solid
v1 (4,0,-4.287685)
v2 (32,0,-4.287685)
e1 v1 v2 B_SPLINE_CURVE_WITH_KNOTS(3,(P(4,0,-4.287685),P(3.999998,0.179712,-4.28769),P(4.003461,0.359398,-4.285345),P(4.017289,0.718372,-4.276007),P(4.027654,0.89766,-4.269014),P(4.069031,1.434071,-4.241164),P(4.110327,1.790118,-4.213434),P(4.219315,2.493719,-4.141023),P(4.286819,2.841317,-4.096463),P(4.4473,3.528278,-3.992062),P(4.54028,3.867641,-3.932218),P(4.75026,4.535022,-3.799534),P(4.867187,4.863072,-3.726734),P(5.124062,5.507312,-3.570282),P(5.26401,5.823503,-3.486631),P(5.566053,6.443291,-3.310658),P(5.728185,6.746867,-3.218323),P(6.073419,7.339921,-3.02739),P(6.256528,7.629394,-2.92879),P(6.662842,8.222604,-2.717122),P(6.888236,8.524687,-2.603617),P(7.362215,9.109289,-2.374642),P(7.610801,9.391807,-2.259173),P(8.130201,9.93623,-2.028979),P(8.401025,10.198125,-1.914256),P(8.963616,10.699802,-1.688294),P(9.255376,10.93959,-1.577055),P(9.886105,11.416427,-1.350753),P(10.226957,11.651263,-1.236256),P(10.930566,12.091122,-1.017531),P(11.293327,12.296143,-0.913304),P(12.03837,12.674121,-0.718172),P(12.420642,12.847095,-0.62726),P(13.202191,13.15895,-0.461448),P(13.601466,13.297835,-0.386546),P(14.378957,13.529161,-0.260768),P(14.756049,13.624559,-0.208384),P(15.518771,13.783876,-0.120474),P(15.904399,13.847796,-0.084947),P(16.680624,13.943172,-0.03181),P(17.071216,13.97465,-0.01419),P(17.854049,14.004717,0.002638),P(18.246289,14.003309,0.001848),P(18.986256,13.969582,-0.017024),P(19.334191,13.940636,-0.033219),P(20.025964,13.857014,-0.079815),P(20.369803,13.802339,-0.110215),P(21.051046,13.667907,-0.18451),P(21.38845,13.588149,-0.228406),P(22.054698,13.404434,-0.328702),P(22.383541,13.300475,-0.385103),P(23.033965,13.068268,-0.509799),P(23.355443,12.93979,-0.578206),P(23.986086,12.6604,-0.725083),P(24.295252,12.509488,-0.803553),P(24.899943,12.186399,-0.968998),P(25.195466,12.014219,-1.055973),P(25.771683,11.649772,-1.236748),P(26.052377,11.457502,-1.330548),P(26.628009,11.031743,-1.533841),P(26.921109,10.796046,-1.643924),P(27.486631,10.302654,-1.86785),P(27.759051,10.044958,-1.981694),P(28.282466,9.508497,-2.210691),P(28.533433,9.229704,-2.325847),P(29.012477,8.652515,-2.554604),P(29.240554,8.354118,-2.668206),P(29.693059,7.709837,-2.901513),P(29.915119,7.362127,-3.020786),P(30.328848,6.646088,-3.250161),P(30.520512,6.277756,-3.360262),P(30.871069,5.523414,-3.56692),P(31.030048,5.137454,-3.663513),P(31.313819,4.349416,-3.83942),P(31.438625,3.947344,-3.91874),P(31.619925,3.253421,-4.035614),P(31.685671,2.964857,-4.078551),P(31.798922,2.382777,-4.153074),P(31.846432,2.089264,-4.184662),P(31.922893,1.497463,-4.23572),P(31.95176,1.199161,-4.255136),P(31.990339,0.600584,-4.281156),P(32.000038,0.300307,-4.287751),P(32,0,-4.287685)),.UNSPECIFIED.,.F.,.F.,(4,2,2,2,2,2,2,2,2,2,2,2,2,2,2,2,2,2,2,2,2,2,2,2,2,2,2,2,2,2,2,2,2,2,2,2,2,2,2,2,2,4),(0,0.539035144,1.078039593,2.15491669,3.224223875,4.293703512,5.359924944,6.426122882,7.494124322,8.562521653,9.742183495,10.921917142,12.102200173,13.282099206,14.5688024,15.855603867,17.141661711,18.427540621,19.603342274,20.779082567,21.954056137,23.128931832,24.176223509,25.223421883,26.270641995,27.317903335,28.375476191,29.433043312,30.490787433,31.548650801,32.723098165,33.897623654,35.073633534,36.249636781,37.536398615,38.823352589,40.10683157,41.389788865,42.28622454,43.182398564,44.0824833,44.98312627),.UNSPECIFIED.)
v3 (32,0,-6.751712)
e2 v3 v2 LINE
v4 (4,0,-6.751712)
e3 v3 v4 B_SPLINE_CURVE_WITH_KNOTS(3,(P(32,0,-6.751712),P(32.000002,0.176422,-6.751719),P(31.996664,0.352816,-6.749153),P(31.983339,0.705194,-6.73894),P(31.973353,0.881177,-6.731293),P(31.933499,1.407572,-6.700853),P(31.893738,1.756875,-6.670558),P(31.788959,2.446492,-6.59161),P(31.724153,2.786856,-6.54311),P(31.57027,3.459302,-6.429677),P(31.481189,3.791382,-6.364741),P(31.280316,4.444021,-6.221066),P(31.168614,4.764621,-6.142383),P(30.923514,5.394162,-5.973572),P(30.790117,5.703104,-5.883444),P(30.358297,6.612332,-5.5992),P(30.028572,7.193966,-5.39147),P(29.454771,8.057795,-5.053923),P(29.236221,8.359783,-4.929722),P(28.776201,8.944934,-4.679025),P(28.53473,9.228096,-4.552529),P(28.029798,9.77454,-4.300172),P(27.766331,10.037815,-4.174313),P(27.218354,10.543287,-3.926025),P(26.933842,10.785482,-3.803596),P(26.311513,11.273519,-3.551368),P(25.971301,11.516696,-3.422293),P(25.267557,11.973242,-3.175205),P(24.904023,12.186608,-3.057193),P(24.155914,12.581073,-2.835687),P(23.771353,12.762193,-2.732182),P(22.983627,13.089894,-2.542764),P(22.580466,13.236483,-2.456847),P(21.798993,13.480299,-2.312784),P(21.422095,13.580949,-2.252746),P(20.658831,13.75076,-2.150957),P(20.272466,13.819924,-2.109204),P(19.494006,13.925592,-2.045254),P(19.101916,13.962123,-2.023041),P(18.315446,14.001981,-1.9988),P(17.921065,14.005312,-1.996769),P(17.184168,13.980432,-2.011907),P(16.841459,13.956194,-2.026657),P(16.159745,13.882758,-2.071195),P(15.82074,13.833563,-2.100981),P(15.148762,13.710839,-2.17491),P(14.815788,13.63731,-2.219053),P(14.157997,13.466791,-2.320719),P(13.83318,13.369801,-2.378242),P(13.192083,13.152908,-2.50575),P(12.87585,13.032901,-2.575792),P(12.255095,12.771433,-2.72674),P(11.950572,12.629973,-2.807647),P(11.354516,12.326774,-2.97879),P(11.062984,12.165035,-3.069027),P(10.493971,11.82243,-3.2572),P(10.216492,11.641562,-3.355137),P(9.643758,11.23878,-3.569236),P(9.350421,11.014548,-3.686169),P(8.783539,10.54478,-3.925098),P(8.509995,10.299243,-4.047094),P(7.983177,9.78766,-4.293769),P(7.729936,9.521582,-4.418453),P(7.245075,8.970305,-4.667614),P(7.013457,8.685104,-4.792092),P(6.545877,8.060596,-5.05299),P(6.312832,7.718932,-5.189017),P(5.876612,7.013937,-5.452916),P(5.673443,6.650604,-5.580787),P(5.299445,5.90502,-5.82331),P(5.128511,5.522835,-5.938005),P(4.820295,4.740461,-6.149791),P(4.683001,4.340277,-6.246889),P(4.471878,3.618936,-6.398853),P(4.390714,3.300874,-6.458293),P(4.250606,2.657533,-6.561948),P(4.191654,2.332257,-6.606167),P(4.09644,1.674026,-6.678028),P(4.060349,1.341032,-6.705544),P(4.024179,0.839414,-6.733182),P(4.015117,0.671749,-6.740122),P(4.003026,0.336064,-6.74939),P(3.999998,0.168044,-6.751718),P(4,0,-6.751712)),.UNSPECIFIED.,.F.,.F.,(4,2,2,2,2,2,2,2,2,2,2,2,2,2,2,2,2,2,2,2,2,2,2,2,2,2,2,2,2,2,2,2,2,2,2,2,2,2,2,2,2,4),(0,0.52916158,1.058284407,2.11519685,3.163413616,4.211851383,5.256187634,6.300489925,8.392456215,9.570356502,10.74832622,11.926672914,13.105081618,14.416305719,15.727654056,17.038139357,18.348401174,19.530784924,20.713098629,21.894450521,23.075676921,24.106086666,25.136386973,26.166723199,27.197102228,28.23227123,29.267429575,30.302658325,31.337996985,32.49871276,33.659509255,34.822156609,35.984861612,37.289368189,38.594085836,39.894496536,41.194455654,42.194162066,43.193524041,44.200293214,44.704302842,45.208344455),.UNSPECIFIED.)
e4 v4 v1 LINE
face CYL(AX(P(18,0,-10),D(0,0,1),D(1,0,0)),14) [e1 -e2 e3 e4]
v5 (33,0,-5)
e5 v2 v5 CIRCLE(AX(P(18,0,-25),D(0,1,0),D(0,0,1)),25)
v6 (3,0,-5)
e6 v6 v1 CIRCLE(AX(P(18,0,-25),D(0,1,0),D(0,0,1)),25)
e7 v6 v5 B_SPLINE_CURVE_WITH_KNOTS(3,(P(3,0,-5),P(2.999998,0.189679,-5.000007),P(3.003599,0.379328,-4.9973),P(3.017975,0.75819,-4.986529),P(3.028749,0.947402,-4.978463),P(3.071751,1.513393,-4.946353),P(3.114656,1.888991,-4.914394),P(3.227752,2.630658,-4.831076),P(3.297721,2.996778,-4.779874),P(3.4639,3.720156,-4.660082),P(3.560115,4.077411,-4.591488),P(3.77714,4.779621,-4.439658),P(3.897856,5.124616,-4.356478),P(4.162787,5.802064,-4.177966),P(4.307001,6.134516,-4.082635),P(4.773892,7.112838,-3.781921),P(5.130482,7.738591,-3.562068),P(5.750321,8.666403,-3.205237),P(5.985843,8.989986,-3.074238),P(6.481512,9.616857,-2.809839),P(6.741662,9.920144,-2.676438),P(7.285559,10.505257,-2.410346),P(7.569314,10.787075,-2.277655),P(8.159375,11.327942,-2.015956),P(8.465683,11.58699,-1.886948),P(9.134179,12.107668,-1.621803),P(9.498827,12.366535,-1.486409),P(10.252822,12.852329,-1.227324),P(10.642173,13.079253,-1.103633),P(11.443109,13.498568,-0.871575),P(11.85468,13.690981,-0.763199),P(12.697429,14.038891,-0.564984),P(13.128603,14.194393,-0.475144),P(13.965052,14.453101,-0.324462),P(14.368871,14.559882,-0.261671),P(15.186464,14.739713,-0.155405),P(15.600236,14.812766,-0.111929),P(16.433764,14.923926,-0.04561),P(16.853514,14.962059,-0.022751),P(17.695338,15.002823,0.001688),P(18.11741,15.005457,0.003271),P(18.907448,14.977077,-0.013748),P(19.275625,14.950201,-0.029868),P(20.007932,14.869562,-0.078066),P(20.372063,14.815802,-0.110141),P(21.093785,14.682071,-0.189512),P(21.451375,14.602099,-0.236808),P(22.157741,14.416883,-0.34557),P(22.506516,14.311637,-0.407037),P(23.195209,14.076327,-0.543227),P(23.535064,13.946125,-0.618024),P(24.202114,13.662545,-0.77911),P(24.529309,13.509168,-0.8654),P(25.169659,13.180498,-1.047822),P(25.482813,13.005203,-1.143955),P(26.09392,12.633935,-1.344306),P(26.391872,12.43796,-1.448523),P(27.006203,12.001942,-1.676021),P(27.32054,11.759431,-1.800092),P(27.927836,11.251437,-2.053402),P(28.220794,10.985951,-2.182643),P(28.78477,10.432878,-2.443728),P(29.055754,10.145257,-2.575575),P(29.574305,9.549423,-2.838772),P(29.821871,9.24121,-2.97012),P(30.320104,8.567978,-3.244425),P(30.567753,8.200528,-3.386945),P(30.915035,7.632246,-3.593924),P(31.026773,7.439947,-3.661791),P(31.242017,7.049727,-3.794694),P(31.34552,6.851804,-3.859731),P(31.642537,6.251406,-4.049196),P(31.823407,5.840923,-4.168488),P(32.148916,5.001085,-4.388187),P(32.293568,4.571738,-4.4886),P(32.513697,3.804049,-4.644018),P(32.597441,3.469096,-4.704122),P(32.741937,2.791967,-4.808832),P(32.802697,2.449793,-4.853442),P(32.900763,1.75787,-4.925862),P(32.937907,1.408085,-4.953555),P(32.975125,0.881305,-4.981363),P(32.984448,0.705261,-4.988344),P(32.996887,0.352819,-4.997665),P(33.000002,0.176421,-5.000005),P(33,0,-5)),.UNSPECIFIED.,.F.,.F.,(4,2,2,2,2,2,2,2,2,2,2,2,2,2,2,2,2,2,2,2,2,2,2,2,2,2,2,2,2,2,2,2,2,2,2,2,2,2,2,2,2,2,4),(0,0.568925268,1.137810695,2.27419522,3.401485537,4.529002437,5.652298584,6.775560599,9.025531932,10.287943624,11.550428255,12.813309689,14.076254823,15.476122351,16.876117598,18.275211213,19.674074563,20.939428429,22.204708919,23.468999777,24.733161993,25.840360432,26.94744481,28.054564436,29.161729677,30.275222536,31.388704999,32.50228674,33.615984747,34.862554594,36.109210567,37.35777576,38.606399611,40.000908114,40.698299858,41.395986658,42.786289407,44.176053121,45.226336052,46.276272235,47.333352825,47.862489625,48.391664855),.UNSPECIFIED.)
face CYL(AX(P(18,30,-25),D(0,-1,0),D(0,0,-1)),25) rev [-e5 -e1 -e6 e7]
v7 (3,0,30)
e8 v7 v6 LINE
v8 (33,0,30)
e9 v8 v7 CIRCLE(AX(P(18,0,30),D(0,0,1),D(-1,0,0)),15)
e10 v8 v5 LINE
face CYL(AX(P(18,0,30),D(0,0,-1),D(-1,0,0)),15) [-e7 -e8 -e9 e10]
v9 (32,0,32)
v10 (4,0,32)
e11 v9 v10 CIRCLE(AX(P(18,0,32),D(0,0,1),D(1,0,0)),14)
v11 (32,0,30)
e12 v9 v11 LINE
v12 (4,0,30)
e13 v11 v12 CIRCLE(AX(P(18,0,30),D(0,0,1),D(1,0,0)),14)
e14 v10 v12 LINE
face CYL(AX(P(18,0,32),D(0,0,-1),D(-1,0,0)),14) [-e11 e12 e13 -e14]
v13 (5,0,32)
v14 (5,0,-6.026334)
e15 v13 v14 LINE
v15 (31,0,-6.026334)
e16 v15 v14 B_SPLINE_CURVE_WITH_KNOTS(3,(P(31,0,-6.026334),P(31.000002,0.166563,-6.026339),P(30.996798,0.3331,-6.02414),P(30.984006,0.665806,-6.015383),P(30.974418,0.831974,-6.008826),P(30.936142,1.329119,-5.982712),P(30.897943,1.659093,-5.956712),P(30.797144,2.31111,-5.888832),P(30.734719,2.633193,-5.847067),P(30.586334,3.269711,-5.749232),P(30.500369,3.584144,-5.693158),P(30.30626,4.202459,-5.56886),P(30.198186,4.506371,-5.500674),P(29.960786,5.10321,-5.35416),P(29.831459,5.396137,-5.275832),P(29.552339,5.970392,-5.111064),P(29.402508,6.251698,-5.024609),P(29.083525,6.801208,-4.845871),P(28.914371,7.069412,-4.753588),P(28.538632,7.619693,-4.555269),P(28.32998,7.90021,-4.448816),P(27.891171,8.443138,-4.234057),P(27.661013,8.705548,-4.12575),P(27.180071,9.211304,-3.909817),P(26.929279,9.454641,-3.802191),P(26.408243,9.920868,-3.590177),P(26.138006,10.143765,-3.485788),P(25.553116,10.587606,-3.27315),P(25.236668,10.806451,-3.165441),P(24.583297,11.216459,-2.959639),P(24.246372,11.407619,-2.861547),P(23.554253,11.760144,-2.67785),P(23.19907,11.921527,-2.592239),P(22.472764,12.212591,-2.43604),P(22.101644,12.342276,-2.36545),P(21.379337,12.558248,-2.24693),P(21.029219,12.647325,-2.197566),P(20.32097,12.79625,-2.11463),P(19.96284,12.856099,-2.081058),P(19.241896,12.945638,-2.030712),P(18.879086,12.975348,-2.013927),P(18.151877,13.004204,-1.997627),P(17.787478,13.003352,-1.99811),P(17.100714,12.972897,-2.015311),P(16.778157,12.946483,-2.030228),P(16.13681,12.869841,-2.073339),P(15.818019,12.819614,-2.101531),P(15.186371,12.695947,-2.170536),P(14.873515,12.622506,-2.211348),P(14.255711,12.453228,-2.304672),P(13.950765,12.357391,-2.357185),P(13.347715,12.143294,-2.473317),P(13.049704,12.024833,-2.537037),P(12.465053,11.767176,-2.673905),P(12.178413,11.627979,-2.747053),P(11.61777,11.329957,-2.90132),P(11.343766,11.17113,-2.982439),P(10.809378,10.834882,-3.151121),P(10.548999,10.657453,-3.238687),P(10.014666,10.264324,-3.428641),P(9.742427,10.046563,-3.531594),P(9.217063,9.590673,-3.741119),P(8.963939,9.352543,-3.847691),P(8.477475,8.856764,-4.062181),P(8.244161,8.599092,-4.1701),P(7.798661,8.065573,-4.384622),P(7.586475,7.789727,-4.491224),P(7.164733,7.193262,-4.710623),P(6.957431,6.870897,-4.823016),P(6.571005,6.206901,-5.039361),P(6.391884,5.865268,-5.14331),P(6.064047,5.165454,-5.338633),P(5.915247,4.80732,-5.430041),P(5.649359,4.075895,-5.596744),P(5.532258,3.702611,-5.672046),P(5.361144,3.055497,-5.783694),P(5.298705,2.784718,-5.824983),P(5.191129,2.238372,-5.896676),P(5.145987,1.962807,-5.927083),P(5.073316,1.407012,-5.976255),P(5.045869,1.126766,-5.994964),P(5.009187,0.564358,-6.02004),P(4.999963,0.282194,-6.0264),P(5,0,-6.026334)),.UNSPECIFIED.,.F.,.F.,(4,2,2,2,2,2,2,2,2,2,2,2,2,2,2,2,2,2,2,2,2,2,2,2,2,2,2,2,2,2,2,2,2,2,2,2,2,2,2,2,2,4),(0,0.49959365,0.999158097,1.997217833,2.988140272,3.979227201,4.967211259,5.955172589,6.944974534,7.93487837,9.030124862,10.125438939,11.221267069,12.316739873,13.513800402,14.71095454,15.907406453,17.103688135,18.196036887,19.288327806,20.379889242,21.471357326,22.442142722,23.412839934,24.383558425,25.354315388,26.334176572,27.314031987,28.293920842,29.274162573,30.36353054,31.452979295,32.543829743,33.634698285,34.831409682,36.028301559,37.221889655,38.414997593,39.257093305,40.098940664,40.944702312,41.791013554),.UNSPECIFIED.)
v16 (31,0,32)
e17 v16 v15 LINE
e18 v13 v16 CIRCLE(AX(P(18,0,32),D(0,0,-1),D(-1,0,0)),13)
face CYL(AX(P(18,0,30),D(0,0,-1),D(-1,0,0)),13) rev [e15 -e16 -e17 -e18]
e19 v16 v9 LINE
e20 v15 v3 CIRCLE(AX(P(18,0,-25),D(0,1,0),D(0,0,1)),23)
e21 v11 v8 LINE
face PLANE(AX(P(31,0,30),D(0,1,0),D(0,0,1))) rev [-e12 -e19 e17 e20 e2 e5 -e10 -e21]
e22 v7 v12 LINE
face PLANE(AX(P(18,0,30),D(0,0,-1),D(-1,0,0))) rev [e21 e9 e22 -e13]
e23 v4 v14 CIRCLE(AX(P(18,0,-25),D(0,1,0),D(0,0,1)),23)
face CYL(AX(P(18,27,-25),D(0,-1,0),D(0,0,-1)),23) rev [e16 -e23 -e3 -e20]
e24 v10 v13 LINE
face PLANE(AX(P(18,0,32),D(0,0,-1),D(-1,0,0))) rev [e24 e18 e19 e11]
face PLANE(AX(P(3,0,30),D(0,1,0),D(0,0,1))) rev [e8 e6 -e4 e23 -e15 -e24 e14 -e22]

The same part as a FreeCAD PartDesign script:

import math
import FreeCAD as App
import Part
import Sketcher

doc = App.newDocument("Part")
body = doc.addObject("PartDesign::Body", "Body")

sketch1 = body.newObject("Sketcher::SketchObject", "Sketch")
sketch1.AttachmentSupport = (doc.getObject("XY_Plane"), [""])
sketch1.MapMode = "FlatFace"
sketch1.addGeometry(Part.LineSegment(App.Vector(3, 0, 0), App.Vector(5, 0, 0)), False)
sketch1.addGeometry(Part.ArcOfCircle(Part.Circle(App.Vector(18, 0, 0), App.Vector(0, 0, 1), 13), math.radians(0), math.radians(180)), False)
sketch1.addGeometry(Part.LineSegment(App.Vector(31, 0, 0), App.Vector(33, 0, 0)), False)
sketch1.addGeometry(Part.ArcOfCircle(Part.Circle(App.Vector(18, 0, 0), App.Vector(0, 0, 1), 15), math.radians(0), math.radians(180)), False)
sketch1.addConstraint(Sketcher.Constraint("Coincident", 0, 2, 1, 2))
sketch1.addConstraint(Sketcher.Constraint("Coincident", 1, 1, 2, 1))
sketch1.addConstraint(Sketcher.Constraint("Coincident", 2, 2, 3, 1))
sketch1.addConstraint(Sketcher.Constraint("Coincident", 3, 2, 0, 1))
sketch1.addConstraint(Sketcher.Constraint("Horizontal", 0))
sketch1.addConstraint(Sketcher.Constraint("Horizontal", 2))
sketch1.addConstraint(Sketcher.Constraint("Coincident", 3, 3, 1, 3))
sketch1.addConstraint(Sketcher.Constraint("PointOnObject", 1, 3, -1))
sketch1.addConstraint(Sketcher.Constraint("PointOnObject", 0, 2, -1))
sketch1.addConstraint(Sketcher.Constraint("PointOnObject", 1, 1, -1))
sketch1.addConstraint(Sketcher.Constraint("Radius", 1, 13.0))
sketch1.addConstraint(Sketcher.Constraint("Radius", 3, 15.0))
sketch1.addConstraint(Sketcher.Constraint("DistanceX", -1, 1, 1, 3, 18.0))
pad1 = body.newObject("PartDesign::Pad", "Pad")
pad1.Profile = sketch1
pad1.Length = 30

sketch2 = body.newObject("Sketcher::SketchObject", "Sketch001")
sketch2.AttachmentSupport = (doc.getObject("XY_Plane"), [""])
sketch2.MapMode = "FlatFace"
sketch2.AttachmentOffset = App.Placement(App.Vector(0, 0, -30), App.Rotation())
sketch2.addGeometry(Part.LineSegment(App.Vector(3, 0, 0), App.Vector(5, 0, 0)), False)
sketch2.addGeometry(Part.ArcOfCircle(Part.Circle(App.Vector(18, 0, 0), App.Vector(0, 0, 1), 13), math.radians(0), math.radians(180)), False)
sketch2.addGeometry(Part.LineSegment(App.Vector(31, 0, 0), App.Vector(33, 0, 0)), False)
sketch2.addGeometry(Part.ArcOfCircle(Part.Circle(App.Vector(18, 0, 0), App.Vector(0, 0, 1), 15), math.radians(0), math.radians(180)), False)
sketch2.addConstraint(Sketcher.Constraint("Coincident", 0, 2, 1, 2))
sketch2.addConstraint(Sketcher.Constraint("Coincident", 1, 1, 2, 1))
sketch2.addConstraint(Sketcher.Constraint("Coincident", 2, 2, 3, 1))
sketch2.addConstraint(Sketcher.Constraint("Coincident", 3, 2, 0, 1))
sketch2.addConstraint(Sketcher.Constraint("Horizontal", 0))
sketch2.addConstraint(Sketcher.Constraint("Horizontal", 2))
sketch2.addConstraint(Sketcher.Constraint("Coincident", 3, 3, 1, 3))
sketch2.addConstraint(Sketcher.Constraint("PointOnObject", 1, 3, -1))
sketch2.addConstraint(Sketcher.Constraint("PointOnObject", 0, 2, -1))
sketch2.addConstraint(Sketcher.Constraint("PointOnObject", 1, 1, -1))
sketch2.addConstraint(Sketcher.Constraint("Radius", 1, 13.0))
sketch2.addConstraint(Sketcher.Constraint("Radius", 3, 15.0))
sketch2.addConstraint(Sketcher.Constraint("DistanceX", -1, 1, 1, 3, 18.0))
pad2 = body.newObject("PartDesign::Pad", "Pad001")
pad2.Profile = sketch2
pad2.Length = 30

sketch3 = body.newObject("Sketcher::SketchObject", "Sketch002")
sketch3.AttachmentSupport = (doc.getObject("XZ_Plane"), [""])
sketch3.MapMode = "FlatFace"
sketch3.addGeometry(Part.Circle(App.Vector(18, -25, 0), App.Vector(0, 0, 1), 25), False)
sketch3.addConstraint(Sketcher.Constraint("Diameter", 0, 50.0))
sketch3.addConstraint(Sketcher.Constraint("DistanceX", -1, 1, 0, 3, 18.0))
sketch3.addConstraint(Sketcher.Constraint("DistanceY", 0, 3, -1, 1, 25.0))
pocket1 = body.newObject("PartDesign::Pocket", "Pocket")
pocket1.Profile = sketch3
pocket1.Length = 30

sketch4 = body.newObject("Sketcher::SketchObject", "Sketch003")
sketch4.AttachmentSupport = (doc.getObject("XY_Plane"), [""])
sketch4.MapMode = "FlatFace"
sketch4.AttachmentOffset = App.Placement(App.Vector(0, 0, 30), App.Rotation())
sketch4.addGeometry(Part.LineSegment(App.Vector(4, 0, 0), App.Vector(5, 0, 0)), False)
sketch4.addGeometry(Part.ArcOfCircle(Part.Circle(App.Vector(18, 0, 0), App.Vector(0, 0, 1), 13), math.radians(0), math.radians(180)), False)
sketch4.addGeometry(Part.LineSegment(App.Vector(31, 0, 0), App.Vector(32, 0, 0)), False)
sketch4.addGeometry(Part.ArcOfCircle(Part.Circle(App.Vector(18, 0, 0), App.Vector(0, 0, 1), 14), math.radians(0), math.radians(180)), False)
sketch4.addConstraint(Sketcher.Constraint("Coincident", 0, 2, 1, 2))
sketch4.addConstraint(Sketcher.Constraint("Coincident", 1, 1, 2, 1))
sketch4.addConstraint(Sketcher.Constraint("Coincident", 2, 2, 3, 1))
sketch4.addConstraint(Sketcher.Constraint("Coincident", 3, 2, 0, 1))
sketch4.addConstraint(Sketcher.Constraint("Horizontal", 0))
sketch4.addConstraint(Sketcher.Constraint("Horizontal", 2))
sketch4.addConstraint(Sketcher.Constraint("Coincident", 3, 3, 1, 3))
sketch4.addConstraint(Sketcher.Constraint("PointOnObject", 1, 3, -1))
sketch4.addConstraint(Sketcher.Constraint("PointOnObject", 0, 2, -1))
sketch4.addConstraint(Sketcher.Constraint("PointOnObject", 1, 1, -1))
sketch4.addConstraint(Sketcher.Constraint("Radius", 1, 13.0))
sketch4.addConstraint(Sketcher.Constraint("Radius", 3, 14.0))
sketch4.addConstraint(Sketcher.Constraint("DistanceX", -1, 1, 1, 3, 18.0))
pad3 = body.newObject("PartDesign::Pad", "Pad002")
pad3.Profile = sketch4
pad3.Length = 2

sketch5 = body.newObject("Sketcher::SketchObject", "Sketch004")
sketch5.AttachmentSupport = (doc.getObject("XY_Plane"), [""])
sketch5.MapMode = "FlatFace"
sketch5.AttachmentOffset = App.Placement(App.Vector(0, 0, -10), App.Rotation())
sketch5.addGeometry(Part.LineSegment(App.Vector(4, 0, 0), App.Vector(5, 0, 0)), False)
sketch5.addGeometry(Part.ArcOfCircle(Part.Circle(App.Vector(18, 0, 0), App.Vector(0, 0, 1), 13), math.radians(0), math.radians(180)), False)
sketch5.addGeometry(Part.LineSegment(App.Vector(31, 0, 0), App.Vector(32, 0, 0)), False)
sketch5.addGeometry(Part.ArcOfCircle(Part.Circle(App.Vector(18, 0, 0), App.Vector(0, 0, 1), 14), math.radians(0), math.radians(180)), False)
sketch5.addConstraint(Sketcher.Constraint("Coincident", 0, 2, 1, 2))
sketch5.addConstraint(Sketcher.Constraint("Coincident", 1, 1, 2, 1))
sketch5.addConstraint(Sketcher.Constraint("Coincident", 2, 2, 3, 1))
sketch5.addConstraint(Sketcher.Constraint("Coincident", 3, 2, 0, 1))
sketch5.addConstraint(Sketcher.Constraint("Horizontal", 0))
sketch5.addConstraint(Sketcher.Constraint("Horizontal", 2))
sketch5.addConstraint(Sketcher.Constraint("Coincident", 3, 3, 1, 3))
sketch5.addConstraint(Sketcher.Constraint("PointOnObject", 1, 3, -1))
sketch5.addConstraint(Sketcher.Constraint("PointOnObject", 0, 2, -1))
sketch5.addConstraint(Sketcher.Constraint("PointOnObject", 1, 1, -1))
sketch5.addConstraint(Sketcher.Constraint("Radius", 1, 13.0))
sketch5.addConstraint(Sketcher.Constraint("Radius", 3, 14.0))
sketch5.addConstraint(Sketcher.Constraint("DistanceX", -1, 1, 1, 3, 18.0))
pad4 = body.newObject("PartDesign::Pad", "Pad003")
pad4.Profile = sketch5
pad4.Length = 10

sketch6 = body.newObject("Sketcher::SketchObject", "Sketch005")
sketch6.AttachmentSupport = (doc.getObject("XZ_Plane"), [""])
sketch6.MapMode = "FlatFace"
sketch6.addGeometry(Part.Circle(App.Vector(18, -25, 0), App.Vector(0, 0, 1), 23), False)
sketch6.addConstraint(Sketcher.Constraint("Diameter", 0, 46.0))
sketch6.addConstraint(Sketcher.Constraint("DistanceX", -1, 1, 0, 3, 18.0))
sketch6.addConstraint(Sketcher.Constraint("DistanceY", 0, 3, -1, 1, 25.0))
pocket2 = body.newObject("PartDesign::Pocket", "Pocket001")
pocket2.Profile = sketch6
pocket2.Length = 27

doc.recompute()
